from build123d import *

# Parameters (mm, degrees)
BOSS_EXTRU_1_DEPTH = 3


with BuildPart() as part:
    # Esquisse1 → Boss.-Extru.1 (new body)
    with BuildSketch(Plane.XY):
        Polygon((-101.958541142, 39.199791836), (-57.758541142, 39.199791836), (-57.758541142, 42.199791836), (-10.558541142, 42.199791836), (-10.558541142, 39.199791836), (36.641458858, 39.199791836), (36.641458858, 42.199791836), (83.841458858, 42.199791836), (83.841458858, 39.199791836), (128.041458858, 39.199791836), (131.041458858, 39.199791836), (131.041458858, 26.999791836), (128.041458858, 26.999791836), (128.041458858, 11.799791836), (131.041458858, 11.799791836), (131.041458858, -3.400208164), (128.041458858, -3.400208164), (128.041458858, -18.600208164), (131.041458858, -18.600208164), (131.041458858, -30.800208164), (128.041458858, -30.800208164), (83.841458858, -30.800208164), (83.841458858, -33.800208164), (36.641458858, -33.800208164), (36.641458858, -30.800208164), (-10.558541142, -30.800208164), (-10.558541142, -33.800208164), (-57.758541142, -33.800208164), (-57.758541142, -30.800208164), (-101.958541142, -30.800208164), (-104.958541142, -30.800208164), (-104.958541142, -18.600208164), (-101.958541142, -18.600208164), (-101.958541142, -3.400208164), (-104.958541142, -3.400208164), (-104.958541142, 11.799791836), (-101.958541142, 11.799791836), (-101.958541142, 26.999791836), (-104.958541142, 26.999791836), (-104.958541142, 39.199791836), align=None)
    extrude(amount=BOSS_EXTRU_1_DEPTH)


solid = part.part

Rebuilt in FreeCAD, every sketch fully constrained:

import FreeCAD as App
import Part
import Sketcher
Q = App.Units.Quantity


def add_polygon(sketch, points):
    """Adds a closed chain of lines whose ends are joined by coincident constraints."""
    first, n = sketch.GeometryCount, len(points)
    for a, b in zip(points, points[1:] + points[:1]):
        sketch.addGeometry(Part.LineSegment(App.Vector(*a, 0), App.Vector(*b, 0)), False)
    for i in range(n):
        sketch.addConstraint(Sketcher.Constraint("Coincident", first + i, 2, first + (i + 1) % n, 1))

doc = App.newDocument("Part")
body = doc.addObject("PartDesign::Body", "Body")

sketch1 = body.newObject("Sketcher::SketchObject", "Sketch")
sketch1.AttachmentSupport = (doc.getObject("XY_Plane"), [""])
sketch1.MapMode = "FlatFace"
add_polygon(sketch1, [(-57.8, 39.2), (-105, 39.2), (-105, 27), (-102, 27), (-102, 11.8), (-105, 11.8), (-105, -3.4), (-102, -3.4), (-102, -18.6), (-105, -18.6), (-105, -30.8), (-57.8, -30.8), (-57.8, -33.8), (-10.6, -33.8), (-10.6, -30.8), (36.6, -30.8), (36.6, -33.8), (83.8, -33.8), (83.8, -30.8), (131, -30.8), (131, -18.6), (128, -18.6), (128, -3.4), (131, -3.4), (131, 11.8), (128, 11.8), (128, 27), (131, 27), (131, 39.2), (83.8, 39.2), (83.8, 42.2), (36.6, 42.2), (36.6, 39.2), (-10.6, 39.2), (-10.6, 42.2), (-57.8, 42.2)])
sketch1.addConstraint([
    Sketcher.Constraint("Horizontal", 0),
    Sketcher.Constraint("Vertical", 1),
    Sketcher.Constraint("Horizontal", 2),
    Sketcher.Constraint("Vertical", 3),
    Sketcher.Constraint("Horizontal", 4),
    Sketcher.Constraint("Vertical", 5),
    Sketcher.Constraint("Horizontal", 6),
    Sketcher.Constraint("Vertical", 7),
    Sketcher.Constraint("Horizontal", 8),
    Sketcher.Constraint("Vertical", 9),
    Sketcher.Constraint("Horizontal", 10),
    Sketcher.Constraint("Vertical", 11),
    Sketcher.Constraint("Horizontal", 12),
    Sketcher.Constraint("Vertical", 13),
    Sketcher.Constraint("Horizontal", 14),
    Sketcher.Constraint("Vertical", 15),
    Sketcher.Constraint("Horizontal", 16),
    Sketcher.Constraint("Vertical", 17),
    Sketcher.Constraint("Horizontal", 18),
    Sketcher.Constraint("Vertical", 19),
    Sketcher.Constraint("Horizontal", 20),
    Sketcher.Constraint("Vertical", 21),
    Sketcher.Constraint("Horizontal", 22),
    Sketcher.Constraint("Vertical", 23),
    Sketcher.Constraint("Horizontal", 24),
    Sketcher.Constraint("Vertical", 25),
    Sketcher.Constraint("Horizontal", 26),
    Sketcher.Constraint("Vertical", 27),
    Sketcher.Constraint("Horizontal", 28),
    Sketcher.Constraint("Vertical", 29),
    Sketcher.Constraint("Horizontal", 30),
    Sketcher.Constraint("Vertical", 31),
    Sketcher.Constraint("Horizontal", 32),
    Sketcher.Constraint("Vertical", 33),
    Sketcher.Constraint("Horizontal", 34),
    Sketcher.Constraint("Vertical", 35),
    Sketcher.Constraint("Horizontal", 10, 2, 13, 2),
    Sketcher.Constraint("Horizontal", 12, 2, 15, 2),
    Sketcher.Constraint("Horizontal", 14, 2, 17, 2),
    Sketcher.Constraint("Horizontal", 8, 2, 19, 2),
    Sketcher.Constraint("Horizontal", 6, 2, 21, 2),
    Sketcher.Constraint("Horizontal", 4, 2, 23, 2),
    Sketcher.Constraint("Horizontal", 2, 2, 25, 2),
    Sketcher.Constraint("Horizontal", 0, 2, 27, 2),
    Sketcher.Constraint("Horizontal", 28, 2, 31, 2),
    Sketcher.Constraint("Horizontal", 30, 2, 33, 2),
    Sketcher.Constraint("Vertical", 1, 2, 4, 2),
    Sketcher.Constraint("Vertical", 3, 2, 6, 2),
    Sketcher.Constraint("Vertical", 5, 2, 8, 2),
    Sketcher.Constraint("Vertical", 19, 2, 22, 2),
    Sketcher.Constraint("Vertical", 21, 2, 24, 2),
    Sketcher.Constraint("Vertical", 23, 2, 26, 2),
    Sketcher.Constraint("Vertical", 17, 2, 28, 2),
    Sketcher.Constraint("Vertical", 15, 2, 30, 2),
    Sketcher.Constraint("Vertical", 13, 2, 32, 2),
    Sketcher.Constraint("Vertical", 11, 2, 34, 2),
    Sketcher.Constraint("Equal", 10, 12),
    Sketcher.Constraint("Equal", 12, 14),
    Sketcher.Constraint("Equal", 14, 16),
    Sketcher.Constraint("Equal", 16, 18),
    Sketcher.Constraint("Equal", 8, 20),
    Sketcher.Constraint("Equal", 3, 5),
    Sketcher.Constraint("Equal", 5, 7),
    Sketcher.Constraint("Equal", 1, 9),
    Sketcher.Constraint("Equal", 26, 11),
    Sketcher.Constraint("Equal", 17, 29),
    Sketcher.Constraint("DistanceX", 2, 1, 2, 2, Q("3 mm")),
    Sketcher.Constraint("DistanceX", 0, 2, 0, 1, Q("47.2 mm")),
    Sketcher.Constraint("DistanceY", 1, 2, 1, 1, Q("12.2 mm")),
    Sketcher.Constraint("DistanceY", 3, 2, 3, 1, Q("15.2 mm")),
    Sketcher.Constraint("DistanceX", 0, 2, -1, 1, Q("104.958541 mm")),
    Sketcher.Constraint("DistanceY", -1, 1, 0, 2, Q("39.199792 mm")),
])
pad1 = body.newObject("PartDesign::Pad", "Pad")
pad1.Profile = sketch1
pad1.Length = 3

doc.recompute()
